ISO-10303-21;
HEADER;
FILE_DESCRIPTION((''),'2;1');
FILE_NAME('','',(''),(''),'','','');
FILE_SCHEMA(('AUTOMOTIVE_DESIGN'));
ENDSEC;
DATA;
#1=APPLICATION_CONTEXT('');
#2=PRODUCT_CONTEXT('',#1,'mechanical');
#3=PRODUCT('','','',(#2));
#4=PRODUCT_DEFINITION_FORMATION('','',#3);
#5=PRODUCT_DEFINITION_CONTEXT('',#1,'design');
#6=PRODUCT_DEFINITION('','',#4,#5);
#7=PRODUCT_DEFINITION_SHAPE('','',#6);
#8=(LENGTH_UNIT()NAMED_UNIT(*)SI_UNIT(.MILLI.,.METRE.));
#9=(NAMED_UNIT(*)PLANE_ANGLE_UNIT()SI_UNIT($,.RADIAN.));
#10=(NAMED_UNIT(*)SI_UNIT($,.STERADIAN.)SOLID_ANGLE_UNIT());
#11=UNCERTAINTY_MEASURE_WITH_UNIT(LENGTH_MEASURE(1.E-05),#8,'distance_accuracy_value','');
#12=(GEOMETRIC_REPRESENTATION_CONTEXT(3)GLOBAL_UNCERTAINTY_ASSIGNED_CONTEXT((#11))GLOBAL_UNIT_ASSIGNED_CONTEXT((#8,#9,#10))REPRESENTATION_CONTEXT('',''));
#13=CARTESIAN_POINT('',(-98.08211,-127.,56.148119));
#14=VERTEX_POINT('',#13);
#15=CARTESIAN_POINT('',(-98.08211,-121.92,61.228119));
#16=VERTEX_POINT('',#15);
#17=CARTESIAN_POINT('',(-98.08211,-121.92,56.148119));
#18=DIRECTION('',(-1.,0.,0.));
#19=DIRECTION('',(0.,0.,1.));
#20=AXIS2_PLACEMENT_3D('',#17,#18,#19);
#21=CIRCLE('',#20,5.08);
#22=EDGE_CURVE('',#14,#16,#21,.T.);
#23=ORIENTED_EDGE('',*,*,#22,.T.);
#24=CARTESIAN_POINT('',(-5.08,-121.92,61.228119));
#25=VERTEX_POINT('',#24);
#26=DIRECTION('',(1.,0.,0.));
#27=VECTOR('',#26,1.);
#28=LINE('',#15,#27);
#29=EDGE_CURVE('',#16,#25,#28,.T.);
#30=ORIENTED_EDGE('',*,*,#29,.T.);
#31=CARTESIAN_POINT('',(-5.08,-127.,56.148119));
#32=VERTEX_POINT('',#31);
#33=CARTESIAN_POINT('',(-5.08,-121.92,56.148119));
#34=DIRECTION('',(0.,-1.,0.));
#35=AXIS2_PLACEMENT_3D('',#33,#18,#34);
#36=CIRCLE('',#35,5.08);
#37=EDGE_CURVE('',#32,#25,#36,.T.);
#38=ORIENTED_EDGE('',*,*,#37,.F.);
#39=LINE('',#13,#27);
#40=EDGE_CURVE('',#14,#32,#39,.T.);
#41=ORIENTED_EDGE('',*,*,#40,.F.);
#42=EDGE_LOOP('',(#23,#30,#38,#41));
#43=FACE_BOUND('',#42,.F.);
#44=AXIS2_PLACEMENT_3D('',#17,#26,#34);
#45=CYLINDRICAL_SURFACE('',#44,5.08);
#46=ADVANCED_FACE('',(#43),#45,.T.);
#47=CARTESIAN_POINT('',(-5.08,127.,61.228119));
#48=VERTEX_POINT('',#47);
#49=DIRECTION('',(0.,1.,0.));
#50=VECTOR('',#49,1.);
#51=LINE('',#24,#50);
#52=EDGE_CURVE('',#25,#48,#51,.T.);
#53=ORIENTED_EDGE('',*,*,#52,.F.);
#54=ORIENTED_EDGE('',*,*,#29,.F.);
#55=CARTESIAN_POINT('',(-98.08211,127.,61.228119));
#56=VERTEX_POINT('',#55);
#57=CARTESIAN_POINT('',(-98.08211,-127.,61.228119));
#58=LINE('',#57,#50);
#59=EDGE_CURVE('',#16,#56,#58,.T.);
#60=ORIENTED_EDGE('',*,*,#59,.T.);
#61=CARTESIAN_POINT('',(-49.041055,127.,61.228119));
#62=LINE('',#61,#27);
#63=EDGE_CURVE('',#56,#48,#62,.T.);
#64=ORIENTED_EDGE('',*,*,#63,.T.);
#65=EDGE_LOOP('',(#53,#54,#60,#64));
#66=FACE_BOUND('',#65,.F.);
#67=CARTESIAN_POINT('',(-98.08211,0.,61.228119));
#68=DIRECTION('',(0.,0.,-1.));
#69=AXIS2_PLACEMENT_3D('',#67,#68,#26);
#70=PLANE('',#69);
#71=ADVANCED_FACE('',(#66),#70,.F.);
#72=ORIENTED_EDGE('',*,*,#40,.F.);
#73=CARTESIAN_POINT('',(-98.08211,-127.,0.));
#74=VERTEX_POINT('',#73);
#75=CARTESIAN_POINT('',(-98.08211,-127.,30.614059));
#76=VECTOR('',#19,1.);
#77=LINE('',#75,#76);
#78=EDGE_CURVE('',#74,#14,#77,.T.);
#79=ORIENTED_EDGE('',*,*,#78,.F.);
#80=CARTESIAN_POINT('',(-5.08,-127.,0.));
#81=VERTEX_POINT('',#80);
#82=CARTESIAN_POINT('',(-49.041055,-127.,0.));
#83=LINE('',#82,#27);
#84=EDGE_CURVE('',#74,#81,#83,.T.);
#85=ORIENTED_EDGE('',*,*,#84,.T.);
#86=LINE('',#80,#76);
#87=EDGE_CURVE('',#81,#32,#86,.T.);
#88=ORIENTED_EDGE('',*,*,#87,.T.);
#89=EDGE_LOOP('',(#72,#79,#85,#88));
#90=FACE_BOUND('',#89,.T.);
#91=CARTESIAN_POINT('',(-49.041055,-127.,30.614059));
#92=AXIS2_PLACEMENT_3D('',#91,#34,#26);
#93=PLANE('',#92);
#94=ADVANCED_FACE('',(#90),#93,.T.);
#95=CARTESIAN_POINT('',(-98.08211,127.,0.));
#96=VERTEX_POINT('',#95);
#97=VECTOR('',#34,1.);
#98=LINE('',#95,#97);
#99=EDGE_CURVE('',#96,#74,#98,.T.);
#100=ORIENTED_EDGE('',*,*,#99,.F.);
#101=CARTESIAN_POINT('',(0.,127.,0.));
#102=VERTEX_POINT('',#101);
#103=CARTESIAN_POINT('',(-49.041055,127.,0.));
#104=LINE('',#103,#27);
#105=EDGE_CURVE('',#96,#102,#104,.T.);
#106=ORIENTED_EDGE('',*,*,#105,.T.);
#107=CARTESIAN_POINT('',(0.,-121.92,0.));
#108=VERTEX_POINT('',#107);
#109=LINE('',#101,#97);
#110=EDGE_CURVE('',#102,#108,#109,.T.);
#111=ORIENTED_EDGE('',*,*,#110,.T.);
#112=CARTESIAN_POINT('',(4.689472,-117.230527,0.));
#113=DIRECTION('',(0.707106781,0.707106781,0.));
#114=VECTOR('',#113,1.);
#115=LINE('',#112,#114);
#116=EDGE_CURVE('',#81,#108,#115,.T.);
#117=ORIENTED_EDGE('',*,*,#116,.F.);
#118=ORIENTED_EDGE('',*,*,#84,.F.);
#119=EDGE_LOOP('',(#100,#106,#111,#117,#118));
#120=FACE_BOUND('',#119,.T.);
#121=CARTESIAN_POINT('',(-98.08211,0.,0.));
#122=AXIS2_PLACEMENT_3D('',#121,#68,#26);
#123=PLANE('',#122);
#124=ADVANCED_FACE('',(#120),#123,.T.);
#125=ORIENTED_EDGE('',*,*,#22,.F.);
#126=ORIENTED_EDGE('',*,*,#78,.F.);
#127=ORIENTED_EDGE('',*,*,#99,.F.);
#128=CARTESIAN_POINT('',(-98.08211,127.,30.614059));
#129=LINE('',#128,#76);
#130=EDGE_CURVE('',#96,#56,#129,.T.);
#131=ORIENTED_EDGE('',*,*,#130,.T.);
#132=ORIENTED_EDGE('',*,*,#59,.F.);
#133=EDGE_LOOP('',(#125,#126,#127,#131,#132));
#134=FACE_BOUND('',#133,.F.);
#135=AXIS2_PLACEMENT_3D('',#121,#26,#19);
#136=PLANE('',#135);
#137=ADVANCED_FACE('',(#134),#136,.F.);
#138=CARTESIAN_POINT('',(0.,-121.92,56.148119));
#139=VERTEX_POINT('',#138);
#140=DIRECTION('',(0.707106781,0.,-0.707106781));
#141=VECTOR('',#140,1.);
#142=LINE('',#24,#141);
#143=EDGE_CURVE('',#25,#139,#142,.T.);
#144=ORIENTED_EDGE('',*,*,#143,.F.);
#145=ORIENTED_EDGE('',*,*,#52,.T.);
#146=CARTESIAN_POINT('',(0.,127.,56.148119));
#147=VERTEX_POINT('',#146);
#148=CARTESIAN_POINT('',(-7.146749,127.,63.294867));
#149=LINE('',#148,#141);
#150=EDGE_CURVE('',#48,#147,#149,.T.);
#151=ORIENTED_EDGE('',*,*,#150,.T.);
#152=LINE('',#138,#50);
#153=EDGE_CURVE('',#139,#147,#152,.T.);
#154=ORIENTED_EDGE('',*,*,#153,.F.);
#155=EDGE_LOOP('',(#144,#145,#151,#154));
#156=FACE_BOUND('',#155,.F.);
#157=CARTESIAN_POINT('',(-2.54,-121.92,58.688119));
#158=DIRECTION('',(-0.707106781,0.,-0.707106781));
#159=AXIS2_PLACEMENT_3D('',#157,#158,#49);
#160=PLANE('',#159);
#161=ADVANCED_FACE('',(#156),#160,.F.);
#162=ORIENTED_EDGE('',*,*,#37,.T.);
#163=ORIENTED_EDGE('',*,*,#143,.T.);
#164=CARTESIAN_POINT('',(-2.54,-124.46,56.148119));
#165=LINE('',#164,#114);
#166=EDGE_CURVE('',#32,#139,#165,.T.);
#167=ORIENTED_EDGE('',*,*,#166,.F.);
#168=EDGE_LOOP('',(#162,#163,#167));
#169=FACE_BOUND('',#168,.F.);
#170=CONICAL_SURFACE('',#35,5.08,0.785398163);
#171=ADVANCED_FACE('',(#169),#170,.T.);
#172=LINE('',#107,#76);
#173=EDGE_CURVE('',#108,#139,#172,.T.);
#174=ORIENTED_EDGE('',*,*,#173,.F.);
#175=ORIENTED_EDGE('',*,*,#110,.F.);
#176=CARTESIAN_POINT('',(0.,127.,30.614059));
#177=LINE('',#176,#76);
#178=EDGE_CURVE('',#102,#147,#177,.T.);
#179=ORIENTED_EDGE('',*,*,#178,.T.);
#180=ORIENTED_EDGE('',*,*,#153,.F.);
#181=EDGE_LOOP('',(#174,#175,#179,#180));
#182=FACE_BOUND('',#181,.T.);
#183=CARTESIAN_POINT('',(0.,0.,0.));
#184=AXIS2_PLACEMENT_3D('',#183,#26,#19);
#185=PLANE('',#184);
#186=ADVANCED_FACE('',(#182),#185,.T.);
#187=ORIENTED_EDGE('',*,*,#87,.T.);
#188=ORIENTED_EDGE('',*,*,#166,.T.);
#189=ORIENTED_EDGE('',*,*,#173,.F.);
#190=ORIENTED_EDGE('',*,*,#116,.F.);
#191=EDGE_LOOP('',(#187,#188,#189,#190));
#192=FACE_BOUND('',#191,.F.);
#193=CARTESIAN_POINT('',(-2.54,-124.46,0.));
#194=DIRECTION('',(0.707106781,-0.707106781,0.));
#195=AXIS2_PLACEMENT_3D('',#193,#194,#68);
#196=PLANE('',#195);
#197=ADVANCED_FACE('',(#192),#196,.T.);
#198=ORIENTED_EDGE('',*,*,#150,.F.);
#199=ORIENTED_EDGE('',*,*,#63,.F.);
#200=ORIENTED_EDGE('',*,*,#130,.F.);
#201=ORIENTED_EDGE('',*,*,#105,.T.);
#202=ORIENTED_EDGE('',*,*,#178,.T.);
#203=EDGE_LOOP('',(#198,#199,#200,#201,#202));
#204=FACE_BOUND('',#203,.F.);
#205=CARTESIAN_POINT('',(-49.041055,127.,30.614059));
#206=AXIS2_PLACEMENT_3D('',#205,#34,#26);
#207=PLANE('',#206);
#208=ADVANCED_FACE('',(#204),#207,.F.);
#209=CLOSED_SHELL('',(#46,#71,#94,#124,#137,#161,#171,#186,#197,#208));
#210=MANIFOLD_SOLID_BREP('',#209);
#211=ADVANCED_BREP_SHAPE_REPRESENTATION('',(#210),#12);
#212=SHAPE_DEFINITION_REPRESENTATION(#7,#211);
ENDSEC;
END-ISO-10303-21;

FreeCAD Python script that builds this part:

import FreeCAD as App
import Part
import Sketcher
Q = App.Units.Quantity


def edges_at(feature, points):
    """Names of the edges that pass closest to the given points."""
    edges = feature.Shape.Edges
    near = lambda p: min(range(len(edges)), key=lambda i: edges[i].distToShape(Part.Vertex(*p))[0])
    return sorted({f"Edge{near(p) + 1}" for p in points})

doc = App.newDocument("Part")
body = doc.addObject("PartDesign::Body", "Body")

sketch1 = body.newObject("Sketcher::SketchObject", "Sketch")
sketch1.AttachmentSupport = (doc.getObject("XZ_Plane"), [""])
sketch1.MapMode = "FlatFace"
sketch1.addGeometry([
    Part.LineSegment(App.Vector(-98, 61, 0), App.Vector(-98, 0, 0)),
    Part.LineSegment(App.Vector(-98, 0, 0), App.Vector(0, 0, 0)),
    Part.LineSegment(App.Vector(0, 0, 0), App.Vector(0, 61, 0)),
    Part.LineSegment(App.Vector(0, 61, 0), App.Vector(-98, 61, 0)),
], False)
sketch1.addConstraint([
    Sketcher.Constraint("Coincident", 0, 2, 1, 1),
    Sketcher.Constraint("Coincident", 1, 2, 2, 1),
    Sketcher.Constraint("Coincident", 2, 2, 3, 1),
    Sketcher.Constraint("Coincident", 3, 2, 0, 1),
    Sketcher.Constraint("Vertical", 0),
    Sketcher.Constraint("Horizontal", 1),
    Sketcher.Constraint("Vertical", 2),
    Sketcher.Constraint("Horizontal", 3),
    Sketcher.Constraint("Coincident", 1, 2, -1, 1),
    Sketcher.Constraint("DistanceX", 1, 1, 1, 2, Q("98.08211 mm")),
    Sketcher.Constraint("DistanceY", 0, 2, 0, 1, Q("61.228119 mm")),
])
pad1 = body.newObject("PartDesign::Pad", "Pad")
pad1.Profile = sketch1
pad1.Length = Q("10 in")
pad1.Midplane = True
doc.recompute()

fillet = body.newObject("PartDesign::Fillet", "Fillet")
fillet.Base = (pad1, edges_at(pad1, [(-49.041, -127, 61.228)]))
fillet.Radius = Q("0.2 in")
doc.recompute()

chamfer = body.newObject("PartDesign::Chamfer", "Chamfer")
chamfer.Base = (fillet, edges_at(fillet, [(0, 2.54, 61.228)]))
chamfer.Size = Q("0.2 in")

doc.recompute()
